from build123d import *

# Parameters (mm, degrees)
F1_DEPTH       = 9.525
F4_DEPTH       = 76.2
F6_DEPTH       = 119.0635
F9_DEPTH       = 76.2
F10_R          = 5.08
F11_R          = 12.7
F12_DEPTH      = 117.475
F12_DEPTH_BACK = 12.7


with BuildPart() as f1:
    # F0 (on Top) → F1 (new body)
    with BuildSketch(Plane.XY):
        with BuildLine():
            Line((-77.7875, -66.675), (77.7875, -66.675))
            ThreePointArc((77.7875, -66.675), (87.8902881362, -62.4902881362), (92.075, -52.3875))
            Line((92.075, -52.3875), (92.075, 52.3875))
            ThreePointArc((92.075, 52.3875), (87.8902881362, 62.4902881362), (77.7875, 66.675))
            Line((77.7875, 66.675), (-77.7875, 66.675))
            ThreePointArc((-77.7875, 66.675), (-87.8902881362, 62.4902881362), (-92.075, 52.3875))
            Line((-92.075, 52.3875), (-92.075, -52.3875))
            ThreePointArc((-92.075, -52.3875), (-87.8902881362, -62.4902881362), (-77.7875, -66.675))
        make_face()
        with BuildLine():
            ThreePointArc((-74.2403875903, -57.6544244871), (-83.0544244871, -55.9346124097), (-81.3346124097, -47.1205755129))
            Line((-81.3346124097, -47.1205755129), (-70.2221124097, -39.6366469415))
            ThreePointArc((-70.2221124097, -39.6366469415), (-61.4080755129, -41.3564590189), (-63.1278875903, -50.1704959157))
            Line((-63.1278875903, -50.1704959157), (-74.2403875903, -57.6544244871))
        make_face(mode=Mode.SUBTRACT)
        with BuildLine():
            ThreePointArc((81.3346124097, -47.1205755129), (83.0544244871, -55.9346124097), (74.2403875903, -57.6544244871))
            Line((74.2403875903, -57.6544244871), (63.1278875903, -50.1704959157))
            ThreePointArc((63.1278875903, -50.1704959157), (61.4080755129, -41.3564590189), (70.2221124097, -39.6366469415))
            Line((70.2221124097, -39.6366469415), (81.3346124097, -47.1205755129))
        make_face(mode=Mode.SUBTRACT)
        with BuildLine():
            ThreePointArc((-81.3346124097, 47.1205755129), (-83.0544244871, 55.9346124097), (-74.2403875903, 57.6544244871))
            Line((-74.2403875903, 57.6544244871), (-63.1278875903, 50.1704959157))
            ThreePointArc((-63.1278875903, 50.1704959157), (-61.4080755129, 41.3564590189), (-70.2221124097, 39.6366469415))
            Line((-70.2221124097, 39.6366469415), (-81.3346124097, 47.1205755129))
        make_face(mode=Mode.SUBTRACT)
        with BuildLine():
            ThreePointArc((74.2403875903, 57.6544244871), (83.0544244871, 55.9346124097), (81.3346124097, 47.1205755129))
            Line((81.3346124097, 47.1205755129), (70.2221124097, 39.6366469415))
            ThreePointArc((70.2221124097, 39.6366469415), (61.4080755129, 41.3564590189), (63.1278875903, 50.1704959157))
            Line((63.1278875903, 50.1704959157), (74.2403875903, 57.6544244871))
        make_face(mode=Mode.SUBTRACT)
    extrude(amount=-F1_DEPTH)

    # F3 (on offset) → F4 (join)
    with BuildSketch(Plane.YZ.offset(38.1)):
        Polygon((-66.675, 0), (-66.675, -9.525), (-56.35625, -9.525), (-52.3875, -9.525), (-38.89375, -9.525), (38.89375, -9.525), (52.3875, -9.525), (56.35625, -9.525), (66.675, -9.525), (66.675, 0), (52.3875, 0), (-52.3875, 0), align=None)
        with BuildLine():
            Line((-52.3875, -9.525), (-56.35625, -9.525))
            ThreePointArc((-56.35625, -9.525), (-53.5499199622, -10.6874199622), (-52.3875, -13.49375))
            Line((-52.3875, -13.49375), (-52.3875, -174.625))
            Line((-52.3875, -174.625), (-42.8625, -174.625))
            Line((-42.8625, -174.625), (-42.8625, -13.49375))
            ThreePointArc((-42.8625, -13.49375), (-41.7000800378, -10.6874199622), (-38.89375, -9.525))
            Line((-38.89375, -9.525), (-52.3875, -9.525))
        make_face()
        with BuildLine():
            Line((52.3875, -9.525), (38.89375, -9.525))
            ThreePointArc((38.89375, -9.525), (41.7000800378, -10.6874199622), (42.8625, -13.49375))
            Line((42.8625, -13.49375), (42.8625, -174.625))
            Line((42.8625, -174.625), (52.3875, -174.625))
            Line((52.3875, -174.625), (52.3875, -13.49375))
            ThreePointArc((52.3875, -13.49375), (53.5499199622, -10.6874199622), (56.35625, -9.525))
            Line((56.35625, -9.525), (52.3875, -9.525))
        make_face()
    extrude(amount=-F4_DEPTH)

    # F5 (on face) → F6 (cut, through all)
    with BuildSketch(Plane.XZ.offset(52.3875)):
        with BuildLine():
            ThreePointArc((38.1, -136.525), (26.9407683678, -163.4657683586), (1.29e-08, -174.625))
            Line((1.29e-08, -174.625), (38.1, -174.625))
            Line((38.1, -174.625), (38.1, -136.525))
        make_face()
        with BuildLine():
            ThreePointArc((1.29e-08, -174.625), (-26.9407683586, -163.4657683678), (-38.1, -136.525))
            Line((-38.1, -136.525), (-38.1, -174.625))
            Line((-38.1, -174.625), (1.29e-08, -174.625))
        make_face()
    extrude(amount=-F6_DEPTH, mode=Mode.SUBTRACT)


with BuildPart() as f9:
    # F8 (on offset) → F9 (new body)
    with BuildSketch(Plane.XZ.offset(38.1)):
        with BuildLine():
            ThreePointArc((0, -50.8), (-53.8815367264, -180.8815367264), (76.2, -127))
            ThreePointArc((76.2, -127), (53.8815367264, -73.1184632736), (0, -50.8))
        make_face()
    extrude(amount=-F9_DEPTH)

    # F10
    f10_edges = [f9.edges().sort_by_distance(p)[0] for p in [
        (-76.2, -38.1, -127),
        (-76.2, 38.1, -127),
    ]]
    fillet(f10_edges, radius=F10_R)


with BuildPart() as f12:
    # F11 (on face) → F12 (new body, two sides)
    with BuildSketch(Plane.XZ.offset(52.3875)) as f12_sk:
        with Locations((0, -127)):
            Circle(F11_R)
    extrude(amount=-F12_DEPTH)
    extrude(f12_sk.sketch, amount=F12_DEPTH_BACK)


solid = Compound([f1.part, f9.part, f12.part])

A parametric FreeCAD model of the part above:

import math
import FreeCAD as App
import Part
import Sketcher

V = App.Vector
Q = App.Units.Quantity


def edges_at(feature, points):
    """Names of the edges that pass closest to the given points."""
    edges = feature.Shape.Edges
    near = lambda p: min(range(len(edges)), key=lambda i: edges[i].distToShape(Part.Vertex(*p))[0])
    return sorted({f"Edge{near(p) + 1}" for p in points})

doc = App.newDocument("Part")
body = doc.addObject("PartDesign::Body", "Body")

sketch1 = body.newObject("Sketcher::SketchObject", "Sketch")
sketch1.AttachmentSupport = (doc.getObject("XY_Plane"), [""])
sketch1.MapMode = "FlatFace"
sketch1.addGeometry(Part.LineSegment(V(-78, -67, 0), V(78, -67, 0)), False)
sketch1.addGeometry(Part.ArcOfCircle(Part.Circle(V(78, -52, 0), V(0, 0, 1), 14), math.radians(-90), math.radians(0)), False)
sketch1.addGeometry(Part.LineSegment(V(92, -52, 0), V(92, 52, 0)), False)
sketch1.addGeometry(Part.ArcOfCircle(Part.Circle(V(78, 52, 0), V(0, 0, 1), 14), math.radians(0), math.radians(90)), False)
sketch1.addGeometry(Part.LineSegment(V(78, 67, 0), V(-78, 67, 0)), False)
sketch1.addGeometry(Part.ArcOfCircle(Part.Circle(V(-78, 52, 0), V(0, 0, 1), 14), math.radians(90), math.radians(180)), False)
sketch1.addGeometry(Part.LineSegment(V(-92, 52, 0), V(-92, -52, 0)), False)
sketch1.addGeometry(Part.ArcOfCircle(Part.Circle(V(-78, -52, 0), V(0, 0, 1), 14), math.radians(180), math.radians(270)), False)
sketch1.addGeometry(Part.LineSegment(V(-63, -50, 0), V(-74, -58, 0)), False)
sketch1.addGeometry(Part.ArcOfCircle(Part.Circle(V(-78, -52, 0), V(0, 0, 1), 6), math.radians(124), math.radians(304)), False)
sketch1.addGeometry(Part.LineSegment(V(-81, -47, 0), V(-70, -40, 0)), False)
sketch1.addGeometry(Part.ArcOfCircle(Part.Circle(V(-67, -45, 0), V(0, 0, 1), 6), math.radians(-56), math.radians(124)), False)
sketch1.addGeometry(Part.LineSegment(V(70, -40, 0), V(81, -47, 0)), False)
sketch1.addGeometry(Part.ArcOfCircle(Part.Circle(V(78, -52, 0), V(0, 0, 1), 6), math.radians(-124), math.radians(56)), False)
sketch1.addGeometry(Part.LineSegment(V(74, -58, 0), V(63, -50, 0)), False)
sketch1.addGeometry(Part.ArcOfCircle(Part.Circle(V(67, -45, 0), V(0, 0, 1), 6), math.radians(56), math.radians(236)), False)
sketch1.addGeometry(Part.LineSegment(V(-70, 40, 0), V(-81, 47, 0)), False)
sketch1.addGeometry(Part.ArcOfCircle(Part.Circle(V(-78, 52, 0), V(0, 0, 1), 6), math.radians(56), math.radians(236)), False)
sketch1.addGeometry(Part.LineSegment(V(-74, 58, 0), V(-63, 50, 0)), False)
sketch1.addGeometry(Part.ArcOfCircle(Part.Circle(V(-67, 45, 0), V(0, 0, 1), 6), math.radians(-124), math.radians(56)), False)
sketch1.addGeometry(Part.LineSegment(V(63, 50, 0), V(74, 58, 0)), False)
sketch1.addGeometry(Part.ArcOfCircle(Part.Circle(V(78, 52, 0), V(0, 0, 1), 6), math.radians(-56), math.radians(124)), False)
sketch1.addGeometry(Part.LineSegment(V(81, 47, 0), V(70, 40, 0)), False)
sketch1.addGeometry(Part.ArcOfCircle(Part.Circle(V(67, 45, 0), V(0, 0, 1), 6), math.radians(124), math.radians(304)), False)
sketch1.addConstraint(Sketcher.Constraint("Tangent", 0, 2, 1, 1))
sketch1.addConstraint(Sketcher.Constraint("Tangent", 1, 2, 2, 1))
sketch1.addConstraint(Sketcher.Constraint("Tangent", 2, 2, 3, 1))
sketch1.addConstraint(Sketcher.Constraint("Tangent", 3, 2, 4, 1))
sketch1.addConstraint(Sketcher.Constraint("Tangent", 4, 2, 5, 1))
sketch1.addConstraint(Sketcher.Constraint("Tangent", 5, 2, 6, 1))
sketch1.addConstraint(Sketcher.Constraint("Tangent", 6, 2, 7, 1))
sketch1.addConstraint(Sketcher.Constraint("Tangent", 7, 2, 0, 1))
sketch1.addConstraint(Sketcher.Constraint("Tangent", 8, 2, 9, 2))
sketch1.addConstraint(Sketcher.Constraint("Tangent", 9, 1, 10, 1))
sketch1.addConstraint(Sketcher.Constraint("Tangent", 10, 2, 11, 2))
sketch1.addConstraint(Sketcher.Constraint("Tangent", 11, 1, 8, 1))
sketch1.addConstraint(Sketcher.Constraint("Tangent", 12, 2, 13, 2))
sketch1.addConstraint(Sketcher.Constraint("Tangent", 13, 1, 14, 1))
sketch1.addConstraint(Sketcher.Constraint("Tangent", 14, 2, 15, 2))
sketch1.addConstraint(Sketcher.Constraint("Tangent", 15, 1, 12, 1))
sketch1.addConstraint(Sketcher.Constraint("Tangent", 16, 2, 17, 2))
sketch1.addConstraint(Sketcher.Constraint("Tangent", 17, 1, 18, 1))
sketch1.addConstraint(Sketcher.Constraint("Tangent", 18, 2, 19, 2))
sketch1.addConstraint(Sketcher.Constraint("Tangent", 19, 1, 16, 1))
sketch1.addConstraint(Sketcher.Constraint("Tangent", 20, 2, 21, 2))
sketch1.addConstraint(Sketcher.Constraint("Tangent", 21, 1, 22, 1))
sketch1.addConstraint(Sketcher.Constraint("Tangent", 22, 2, 23, 2))
sketch1.addConstraint(Sketcher.Constraint("Tangent", 23, 1, 20, 1))
sketch1.addConstraint(Sketcher.Constraint("Horizontal", 0))
sketch1.addConstraint(Sketcher.Constraint("Vertical", 2))
sketch1.addConstraint(Sketcher.Constraint("Horizontal", 4))
sketch1.addConstraint(Sketcher.Constraint("Vertical", 6))
sketch1.addConstraint(Sketcher.Constraint("Coincident", 9, 3, 7, 3))
sketch1.addConstraint(Sketcher.Constraint("Coincident", 13, 3, 1, 3))
sketch1.addConstraint(Sketcher.Constraint("Coincident", 17, 3, 5, 3))
sketch1.addConstraint(Sketcher.Constraint("Coincident", 21, 3, 3, 3))
sketch1.addConstraint(Sketcher.Constraint("Equal", 1, 3))
sketch1.addConstraint(Sketcher.Constraint("Equal", 3, 5))
sketch1.addConstraint(Sketcher.Constraint("Equal", 5, 7))
sketch1.addConstraint(Sketcher.Constraint("Equal", 9, 11))
sketch1.addConstraint(Sketcher.Constraint("Equal", 11, 13))
sketch1.addConstraint(Sketcher.Constraint("Equal", 13, 15))
sketch1.addConstraint(Sketcher.Constraint("Equal", 15, 17))
sketch1.addConstraint(Sketcher.Constraint("Equal", 17, 19))
sketch1.addConstraint(Sketcher.Constraint("Equal", 19, 21))
sketch1.addConstraint(Sketcher.Constraint("Equal", 21, 23))
sketch1.addConstraint(Sketcher.Constraint("Symmetric", 1, 3, 5, 3, -1, 1))
sketch1.addConstraint(Sketcher.Constraint("Symmetric", 15, 3, 19, 3, -1, 1))
sketch1.addConstraint(Sketcher.Constraint("Symmetric", 11, 3, 23, 3, -1, 1))
sketch1.addConstraint(Sketcher.Constraint("Symmetric", 11, 3, 15, 3, -2))
sketch1.addConstraint(Sketcher.Constraint("Radius", 9, Q("0.25 in")))
sketch1.addConstraint(Sketcher.Constraint("Radius", 1, Q("0.5625 in")))
sketch1.addConstraint(Sketcher.Constraint("DistanceX", 15, 3, 1, 2, Q("1 in")))
sketch1.addConstraint(Sketcher.Constraint("DistanceX", 0, 1, 0, 2, Q("6.125 in")))
sketch1.addConstraint(Sketcher.Constraint("DistanceY", 2, 1, 2, 2, Q("4.125 in")))
sketch1.addConstraint(Sketcher.Constraint("DistanceX", 9, 1, 8, 2, Q("0.2793002 in")))
pad1 = body.newObject("PartDesign::Pad", "Pad")
pad1.Profile = sketch1
pad1.Length = Q("0.375 in")
pad1.Reversed = True

sketch2 = body.newObject("Sketcher::SketchObject", "Sketch001")
sketch2.AttachmentSupport = (doc.getObject("YZ_Plane"), [""])
sketch2.MapMode = "FlatFace"
sketch2.AttachmentOffset = App.Placement(V(0, 0, 1.5 * 25.4), App.Rotation())
sketch2.addGeometry(Part.LineSegment(V(-66.7, 0, 0), V(-66.7, -9.5, 0)), False)
sketch2.addGeometry(Part.LineSegment(V(-66.7, -9.5, 0), V(-56.4, -9.5, 0)), False)
sketch2.addGeometry(Part.ArcOfCircle(Part.Circle(V(-56.4, -13.5, 0), V(0, 0, 1), 4), math.radians(0), math.radians(90)), False)
sketch2.addGeometry(Part.LineSegment(V(-52.4, -13.5, 0), V(-52.4, -174.6, 0)), False)
sketch2.addGeometry(Part.LineSegment(V(-52.4, -174.6, 0), V(-42.9, -174.6, 0)), False)
sketch2.addGeometry(Part.LineSegment(V(-42.9, -174.6, 0), V(-42.9, -13.5, 0)), False)
sketch2.addGeometry(Part.ArcOfCircle(Part.Circle(V(-38.9, -13.5, 0), V(0, 0, 1), 4), math.radians(90), math.radians(180)), False)
sketch2.addGeometry(Part.LineSegment(V(-38.9, -9.5, 0), V(38.9, -9.5, 0)), False)
sketch2.addGeometry(Part.ArcOfCircle(Part.Circle(V(38.9, -13.5, 0), V(0, 0, 1), 4), math.radians(0), math.radians(90)), False)
sketch2.addGeometry(Part.LineSegment(V(42.9, -13.5, 0), V(42.9, -174.6, 0)), False)
sketch2.addGeometry(Part.LineSegment(V(42.9, -174.6, 0), V(52.4, -174.6, 0)), False)
sketch2.addGeometry(Part.LineSegment(V(52.4, -174.6, 0), V(52.4, -13.5, 0)), False)
sketch2.addGeometry(Part.ArcOfCircle(Part.Circle(V(56.4, -13.5, 0), V(0, 0, 1), 4), math.radians(90), math.radians(180)), False)
sketch2.addGeometry(Part.LineSegment(V(56.4, -9.5, 0), V(66.7, -9.5, 0)), False)
sketch2.addGeometry(Part.LineSegment(V(66.7, -9.5, 0), V(66.7, 0, 0)), False)
sketch2.addGeometry(Part.LineSegment(V(66.7, 0, 0), V(-66.7, 0, 0)), False)
sketch2.addConstraint(Sketcher.Constraint("Coincident", 0, 2, 1, 1))
sketch2.addConstraint(Sketcher.Constraint("Tangent", 1, 2, 2, 2))
sketch2.addConstraint(Sketcher.Constraint("Tangent", 2, 1, 3, 1))
sketch2.addConstraint(Sketcher.Constraint("Coincident", 3, 2, 4, 1))
sketch2.addConstraint(Sketcher.Constraint("Coincident", 4, 2, 5, 1))
sketch2.addConstraint(Sketcher.Constraint("Tangent", 5, 2, 6, 2))
sketch2.addConstraint(Sketcher.Constraint("Tangent", 6, 1, 7, 1))
sketch2.addConstraint(Sketcher.Constraint("Tangent", 7, 2, 8, 2))
sketch2.addConstraint(Sketcher.Constraint("Tangent", 8, 1, 9, 1))
sketch2.addConstraint(Sketcher.Constraint("Coincident", 9, 2, 10, 1))
sketch2.addConstraint(Sketcher.Constraint("Coincident", 10, 2, 11, 1))
sketch2.addConstraint(Sketcher.Constraint("Tangent", 11, 2, 12, 2))
sketch2.addConstraint(Sketcher.Constraint("Tangent", 12, 1, 13, 1))
sketch2.addConstraint(Sketcher.Constraint("Coincident", 13, 2, 14, 1))
sketch2.addConstraint(Sketcher.Constraint("Coincident", 14, 2, 15, 1))
sketch2.addConstraint(Sketcher.Constraint("Coincident", 15, 2, 0, 1))
sketch2.addConstraint(Sketcher.Constraint("Vertical", 0))
sketch2.addConstraint(Sketcher.Constraint("Horizontal", 1))
sketch2.addConstraint(Sketcher.Constraint("Vertical", 3))
sketch2.addConstraint(Sketcher.Constraint("Horizontal", 4))
sketch2.addConstraint(Sketcher.Constraint("Vertical", 5))
sketch2.addConstraint(Sketcher.Constraint("Horizontal", 7))
sketch2.addConstraint(Sketcher.Constraint("Vertical", 9))
sketch2.addConstraint(Sketcher.Constraint("Horizontal", 10))
sketch2.addConstraint(Sketcher.Constraint("Vertical", 11))
sketch2.addConstraint(Sketcher.Constraint("Horizontal", 13))
sketch2.addConstraint(Sketcher.Constraint("Vertical", 14))
sketch2.addConstraint(Sketcher.Constraint("Horizontal", 15))
sketch2.addConstraint(Sketcher.Constraint("Equal", 2, 6))
sketch2.addConstraint(Sketcher.Constraint("Equal", 6, 8))
sketch2.addConstraint(Sketcher.Constraint("Equal", 8, 12))
sketch2.addConstraint(Sketcher.Constraint("Symmetric", 14, 2, 15, 2, -1, 1))
sketch2.addConstraint(Sketcher.Constraint("Symmetric", 2, 3, 12, 3, -2))
sketch2.addConstraint(Sketcher.Constraint("Symmetric", 4, 2, 9, 2, -2))
sketch2.addConstraint(Sketcher.Constraint("Horizontal", 2, 3, 6, 3))
sketch2.addConstraint(Sketcher.Constraint("Equal", 10, 0))
sketch2.addConstraint(Sketcher.Constraint("Radius", 2, Q("0.15625 in")))
sketch2.addConstraint(Sketcher.Constraint("DistanceX", 15, 2, 15, 1, Q("5.25 in")))
sketch2.addConstraint(Sketcher.Constraint("DistanceY", 3, 2, 1, 2, Q("6.5 in")))
sketch2.addConstraint(Sketcher.Constraint("DistanceX", 1, 1, 1, 2, Q("0.40625 in")))
sketch2.addConstraint(Sketcher.Constraint("DistanceX", 4, 1, 4, 2, Q("0.375 in")))
pad2 = body.newObject("PartDesign::Pad", "Pad001")
pad2.Profile = sketch2
pad2.Length = Q("3 in")
pad2.Reversed = True

sketch3 = body.newObject("Sketcher::SketchObject", "Sketch002")
sketch3.AttachmentSupport = (doc.getObject("XZ_Plane"), [""])
sketch3.MapMode = "FlatFace"
sketch3.AttachmentOffset = App.Placement(V(0, 0, 2.0625 * 25.4), App.Rotation())
sketch3.addGeometry(Part.ArcOfCircle(Part.Circle(V(0, -137, 0), V(0, 0, 1), 38), math.radians(-90), math.radians(0)), False)
sketch3.addGeometry(Part.LineSegment(V(0, -175, 0), V(38, -175, 0)), False)
sketch3.addGeometry(Part.LineSegment(V(38, -175, 0), V(38, -137, 0)), False)
sketch3.addGeometry(Part.ArcOfCircle(Part.Circle(V(0, -137, 0), V(0, 0, 1), 38), math.radians(180), math.radians(270)), False)
sketch3.addGeometry(Part.LineSegment(V(-38, -137, 0), V(-38, -175, 0)), False)
sketch3.addGeometry(Part.LineSegment(V(-38, -175, 0), V(0, -175, 0)), False)
sketch3.addConstraint(Sketcher.Constraint("Tangent", 0, 1, 1, 1))
sketch3.addConstraint(Sketcher.Constraint("Coincident", 1, 2, 2, 1))
sketch3.addConstraint(Sketcher.Constraint("Tangent", 2, 2, 0, 2))
sketch3.addConstraint(Sketcher.Constraint("Tangent", 3, 1, 4, 1))
sketch3.addConstraint(Sketcher.Constraint("Coincident", 4, 2, 5, 1))
sketch3.addConstraint(Sketcher.Constraint("Tangent", 5, 2, 3, 2))
sketch3.addConstraint(Sketcher.Constraint("Horizontal", 1))
sketch3.addConstraint(Sketcher.Constraint("Vertical", 2))
sketch3.addConstraint(Sketcher.Constraint("Vertical", 4))
sketch3.addConstraint(Sketcher.Constraint("Horizontal", 5))
sketch3.addConstraint(Sketcher.Constraint("Coincident", 3, 3, 0, 3))
sketch3.addConstraint(Sketcher.Constraint("Equal", 0, 3))
sketch3.addConstraint(Sketcher.Constraint("PointOnObject", 0, 3, -2))
sketch3.addConstraint(Sketcher.Constraint("Radius", 0, Q("1.5 in")))
sketch3.addConstraint(Sketcher.Constraint("DistanceY", 0, 3, -1, 1, Q("5.375 in")))
pocket1 = body.newObject("PartDesign::Pocket", "Pocket")
pocket1.Profile = sketch3
pocket1.Type = "ThroughAll"
body2 = doc.addObject("PartDesign::Body", "Body001")

sketch4 = body2.newObject("Sketcher::SketchObject", "Sketch003")
sketch4.AttachmentSupport = (doc.getObject("XZ_Plane001"), [""])
sketch4.MapMode = "FlatFace"
sketch4.AttachmentOffset = App.Placement(V(0, 0, 1.5 * 25.4), App.Rotation())
sketch4.addGeometry(Part.Circle(V(0, -127, 0), V(0, 0, 1), 76), False)
sketch4.addConstraint(Sketcher.Constraint("PointOnObject", 0, 3, -2))
sketch4.addConstraint(Sketcher.Constraint("Diameter", 0, Q("6 in")))
sketch4.addConstraint(Sketcher.Constraint("DistanceY", 0, 3, -1, 1, Q("5 in")))
pad3 = body2.newObject("PartDesign::Pad", "Pad002")
pad3.Profile = sketch4
pad3.Length = Q("3 in")
pad3.Reversed = True
doc.recompute()

fillet = body2.newObject("PartDesign::Fillet", "Fillet")
fillet.Base = (pad3, edges_at(pad3, [(-76.2, -38.1, -127), (-76.2, 38.1, -127)]))
fillet.Radius = Q("0.2 in")
body3 = doc.addObject("PartDesign::Body", "Body002")

sketch5 = body3.newObject("Sketcher::SketchObject", "Sketch004")
sketch5.AttachmentSupport = (doc.getObject("XZ_Plane002"), [""])
sketch5.MapMode = "FlatFace"
sketch5.AttachmentOffset = App.Placement(V(0, 0, 2.0625 * 25.4), App.Rotation())
sketch5.addGeometry(Part.Circle(V(0, -127, 0), V(0, 0, 1), 13), False)
sketch5.addConstraint(Sketcher.Constraint("PointOnObject", 0, 3, -2))
sketch5.addConstraint(Sketcher.Constraint("Diameter", 0, Q("1 in")))
sketch5.addConstraint(Sketcher.Constraint("DistanceY", 0, 3, -1, 1, Q("5 in")))
pad4 = body3.newObject("PartDesign::Pad", "Pad003")
pad4.Profile = sketch5
pad4.Type = "TwoLengths"
pad4.Length = Q("4.625 in")
pad4.Length2 = Q("0.5 in")
pad4.Reversed = True

doc.recompute()
